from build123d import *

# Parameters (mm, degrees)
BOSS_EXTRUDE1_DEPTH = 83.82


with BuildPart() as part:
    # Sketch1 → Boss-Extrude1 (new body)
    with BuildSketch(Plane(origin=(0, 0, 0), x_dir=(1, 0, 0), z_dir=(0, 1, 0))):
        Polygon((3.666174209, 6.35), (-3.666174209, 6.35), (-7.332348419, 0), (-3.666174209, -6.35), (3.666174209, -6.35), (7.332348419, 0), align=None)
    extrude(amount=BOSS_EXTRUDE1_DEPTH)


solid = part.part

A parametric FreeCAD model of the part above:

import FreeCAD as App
import Part
import Sketcher

V = App.Vector
Q = App.Units.Quantity


def add_polygon(sketch, points):
    """Adds a closed chain of lines whose ends are joined by coincident constraints."""
    first, n = sketch.GeometryCount, len(points)
    for a, b in zip(points, points[1:] + points[:1]):
        sketch.addGeometry(Part.LineSegment(App.Vector(*a, 0), App.Vector(*b, 0)), False)
    for i in range(n):
        sketch.addConstraint(Sketcher.Constraint("Coincident", first + i, 2, first + (i + 1) % n, 1))

doc = App.newDocument("Part")
body = doc.addObject("PartDesign::Body", "Body")

sketch1 = body.newObject("Sketcher::SketchObject", "Sketch")
sketch1.AttachmentSupport = (doc.getObject("XZ_Plane"), [""])
sketch1.MapMode = "FlatFace"
add_polygon(sketch1, [(4, -6), (-4, -6), (-7, 0), (-4, 6), (4, 6), (7, 0)])
sketch1.addConstraint([
    Sketcher.Constraint("Horizontal", 0),
    Sketcher.Constraint("Horizontal", 3),
    Sketcher.Constraint("Symmetric", 0, 2, 3, 2, -1, 1),
    Sketcher.Constraint("Symmetric", 1, 2, 4, 2, -1, 1),
    Sketcher.Constraint("PointOnObject", 1, 2, -1),
    Sketcher.Constraint("Parallel", 2, 5),
    Sketcher.Constraint("Vertical", 0, 2, 2, 2),
    Sketcher.Constraint("Angle", 1, Q("120 deg")),
    Sketcher.Constraint("DistanceY", 0, 2, 2, 2, Q("0.5 in")),
    Sketcher.Constraint("DistanceX", 0, 2, 0, 1, 7.332348),
])
pad1 = body.newObject("PartDesign::Pad", "Pad")
pad1.Profile = sketch1
pad1.Length = Q("3.3 in")
pad1.Reversed = True

doc.recompute()
